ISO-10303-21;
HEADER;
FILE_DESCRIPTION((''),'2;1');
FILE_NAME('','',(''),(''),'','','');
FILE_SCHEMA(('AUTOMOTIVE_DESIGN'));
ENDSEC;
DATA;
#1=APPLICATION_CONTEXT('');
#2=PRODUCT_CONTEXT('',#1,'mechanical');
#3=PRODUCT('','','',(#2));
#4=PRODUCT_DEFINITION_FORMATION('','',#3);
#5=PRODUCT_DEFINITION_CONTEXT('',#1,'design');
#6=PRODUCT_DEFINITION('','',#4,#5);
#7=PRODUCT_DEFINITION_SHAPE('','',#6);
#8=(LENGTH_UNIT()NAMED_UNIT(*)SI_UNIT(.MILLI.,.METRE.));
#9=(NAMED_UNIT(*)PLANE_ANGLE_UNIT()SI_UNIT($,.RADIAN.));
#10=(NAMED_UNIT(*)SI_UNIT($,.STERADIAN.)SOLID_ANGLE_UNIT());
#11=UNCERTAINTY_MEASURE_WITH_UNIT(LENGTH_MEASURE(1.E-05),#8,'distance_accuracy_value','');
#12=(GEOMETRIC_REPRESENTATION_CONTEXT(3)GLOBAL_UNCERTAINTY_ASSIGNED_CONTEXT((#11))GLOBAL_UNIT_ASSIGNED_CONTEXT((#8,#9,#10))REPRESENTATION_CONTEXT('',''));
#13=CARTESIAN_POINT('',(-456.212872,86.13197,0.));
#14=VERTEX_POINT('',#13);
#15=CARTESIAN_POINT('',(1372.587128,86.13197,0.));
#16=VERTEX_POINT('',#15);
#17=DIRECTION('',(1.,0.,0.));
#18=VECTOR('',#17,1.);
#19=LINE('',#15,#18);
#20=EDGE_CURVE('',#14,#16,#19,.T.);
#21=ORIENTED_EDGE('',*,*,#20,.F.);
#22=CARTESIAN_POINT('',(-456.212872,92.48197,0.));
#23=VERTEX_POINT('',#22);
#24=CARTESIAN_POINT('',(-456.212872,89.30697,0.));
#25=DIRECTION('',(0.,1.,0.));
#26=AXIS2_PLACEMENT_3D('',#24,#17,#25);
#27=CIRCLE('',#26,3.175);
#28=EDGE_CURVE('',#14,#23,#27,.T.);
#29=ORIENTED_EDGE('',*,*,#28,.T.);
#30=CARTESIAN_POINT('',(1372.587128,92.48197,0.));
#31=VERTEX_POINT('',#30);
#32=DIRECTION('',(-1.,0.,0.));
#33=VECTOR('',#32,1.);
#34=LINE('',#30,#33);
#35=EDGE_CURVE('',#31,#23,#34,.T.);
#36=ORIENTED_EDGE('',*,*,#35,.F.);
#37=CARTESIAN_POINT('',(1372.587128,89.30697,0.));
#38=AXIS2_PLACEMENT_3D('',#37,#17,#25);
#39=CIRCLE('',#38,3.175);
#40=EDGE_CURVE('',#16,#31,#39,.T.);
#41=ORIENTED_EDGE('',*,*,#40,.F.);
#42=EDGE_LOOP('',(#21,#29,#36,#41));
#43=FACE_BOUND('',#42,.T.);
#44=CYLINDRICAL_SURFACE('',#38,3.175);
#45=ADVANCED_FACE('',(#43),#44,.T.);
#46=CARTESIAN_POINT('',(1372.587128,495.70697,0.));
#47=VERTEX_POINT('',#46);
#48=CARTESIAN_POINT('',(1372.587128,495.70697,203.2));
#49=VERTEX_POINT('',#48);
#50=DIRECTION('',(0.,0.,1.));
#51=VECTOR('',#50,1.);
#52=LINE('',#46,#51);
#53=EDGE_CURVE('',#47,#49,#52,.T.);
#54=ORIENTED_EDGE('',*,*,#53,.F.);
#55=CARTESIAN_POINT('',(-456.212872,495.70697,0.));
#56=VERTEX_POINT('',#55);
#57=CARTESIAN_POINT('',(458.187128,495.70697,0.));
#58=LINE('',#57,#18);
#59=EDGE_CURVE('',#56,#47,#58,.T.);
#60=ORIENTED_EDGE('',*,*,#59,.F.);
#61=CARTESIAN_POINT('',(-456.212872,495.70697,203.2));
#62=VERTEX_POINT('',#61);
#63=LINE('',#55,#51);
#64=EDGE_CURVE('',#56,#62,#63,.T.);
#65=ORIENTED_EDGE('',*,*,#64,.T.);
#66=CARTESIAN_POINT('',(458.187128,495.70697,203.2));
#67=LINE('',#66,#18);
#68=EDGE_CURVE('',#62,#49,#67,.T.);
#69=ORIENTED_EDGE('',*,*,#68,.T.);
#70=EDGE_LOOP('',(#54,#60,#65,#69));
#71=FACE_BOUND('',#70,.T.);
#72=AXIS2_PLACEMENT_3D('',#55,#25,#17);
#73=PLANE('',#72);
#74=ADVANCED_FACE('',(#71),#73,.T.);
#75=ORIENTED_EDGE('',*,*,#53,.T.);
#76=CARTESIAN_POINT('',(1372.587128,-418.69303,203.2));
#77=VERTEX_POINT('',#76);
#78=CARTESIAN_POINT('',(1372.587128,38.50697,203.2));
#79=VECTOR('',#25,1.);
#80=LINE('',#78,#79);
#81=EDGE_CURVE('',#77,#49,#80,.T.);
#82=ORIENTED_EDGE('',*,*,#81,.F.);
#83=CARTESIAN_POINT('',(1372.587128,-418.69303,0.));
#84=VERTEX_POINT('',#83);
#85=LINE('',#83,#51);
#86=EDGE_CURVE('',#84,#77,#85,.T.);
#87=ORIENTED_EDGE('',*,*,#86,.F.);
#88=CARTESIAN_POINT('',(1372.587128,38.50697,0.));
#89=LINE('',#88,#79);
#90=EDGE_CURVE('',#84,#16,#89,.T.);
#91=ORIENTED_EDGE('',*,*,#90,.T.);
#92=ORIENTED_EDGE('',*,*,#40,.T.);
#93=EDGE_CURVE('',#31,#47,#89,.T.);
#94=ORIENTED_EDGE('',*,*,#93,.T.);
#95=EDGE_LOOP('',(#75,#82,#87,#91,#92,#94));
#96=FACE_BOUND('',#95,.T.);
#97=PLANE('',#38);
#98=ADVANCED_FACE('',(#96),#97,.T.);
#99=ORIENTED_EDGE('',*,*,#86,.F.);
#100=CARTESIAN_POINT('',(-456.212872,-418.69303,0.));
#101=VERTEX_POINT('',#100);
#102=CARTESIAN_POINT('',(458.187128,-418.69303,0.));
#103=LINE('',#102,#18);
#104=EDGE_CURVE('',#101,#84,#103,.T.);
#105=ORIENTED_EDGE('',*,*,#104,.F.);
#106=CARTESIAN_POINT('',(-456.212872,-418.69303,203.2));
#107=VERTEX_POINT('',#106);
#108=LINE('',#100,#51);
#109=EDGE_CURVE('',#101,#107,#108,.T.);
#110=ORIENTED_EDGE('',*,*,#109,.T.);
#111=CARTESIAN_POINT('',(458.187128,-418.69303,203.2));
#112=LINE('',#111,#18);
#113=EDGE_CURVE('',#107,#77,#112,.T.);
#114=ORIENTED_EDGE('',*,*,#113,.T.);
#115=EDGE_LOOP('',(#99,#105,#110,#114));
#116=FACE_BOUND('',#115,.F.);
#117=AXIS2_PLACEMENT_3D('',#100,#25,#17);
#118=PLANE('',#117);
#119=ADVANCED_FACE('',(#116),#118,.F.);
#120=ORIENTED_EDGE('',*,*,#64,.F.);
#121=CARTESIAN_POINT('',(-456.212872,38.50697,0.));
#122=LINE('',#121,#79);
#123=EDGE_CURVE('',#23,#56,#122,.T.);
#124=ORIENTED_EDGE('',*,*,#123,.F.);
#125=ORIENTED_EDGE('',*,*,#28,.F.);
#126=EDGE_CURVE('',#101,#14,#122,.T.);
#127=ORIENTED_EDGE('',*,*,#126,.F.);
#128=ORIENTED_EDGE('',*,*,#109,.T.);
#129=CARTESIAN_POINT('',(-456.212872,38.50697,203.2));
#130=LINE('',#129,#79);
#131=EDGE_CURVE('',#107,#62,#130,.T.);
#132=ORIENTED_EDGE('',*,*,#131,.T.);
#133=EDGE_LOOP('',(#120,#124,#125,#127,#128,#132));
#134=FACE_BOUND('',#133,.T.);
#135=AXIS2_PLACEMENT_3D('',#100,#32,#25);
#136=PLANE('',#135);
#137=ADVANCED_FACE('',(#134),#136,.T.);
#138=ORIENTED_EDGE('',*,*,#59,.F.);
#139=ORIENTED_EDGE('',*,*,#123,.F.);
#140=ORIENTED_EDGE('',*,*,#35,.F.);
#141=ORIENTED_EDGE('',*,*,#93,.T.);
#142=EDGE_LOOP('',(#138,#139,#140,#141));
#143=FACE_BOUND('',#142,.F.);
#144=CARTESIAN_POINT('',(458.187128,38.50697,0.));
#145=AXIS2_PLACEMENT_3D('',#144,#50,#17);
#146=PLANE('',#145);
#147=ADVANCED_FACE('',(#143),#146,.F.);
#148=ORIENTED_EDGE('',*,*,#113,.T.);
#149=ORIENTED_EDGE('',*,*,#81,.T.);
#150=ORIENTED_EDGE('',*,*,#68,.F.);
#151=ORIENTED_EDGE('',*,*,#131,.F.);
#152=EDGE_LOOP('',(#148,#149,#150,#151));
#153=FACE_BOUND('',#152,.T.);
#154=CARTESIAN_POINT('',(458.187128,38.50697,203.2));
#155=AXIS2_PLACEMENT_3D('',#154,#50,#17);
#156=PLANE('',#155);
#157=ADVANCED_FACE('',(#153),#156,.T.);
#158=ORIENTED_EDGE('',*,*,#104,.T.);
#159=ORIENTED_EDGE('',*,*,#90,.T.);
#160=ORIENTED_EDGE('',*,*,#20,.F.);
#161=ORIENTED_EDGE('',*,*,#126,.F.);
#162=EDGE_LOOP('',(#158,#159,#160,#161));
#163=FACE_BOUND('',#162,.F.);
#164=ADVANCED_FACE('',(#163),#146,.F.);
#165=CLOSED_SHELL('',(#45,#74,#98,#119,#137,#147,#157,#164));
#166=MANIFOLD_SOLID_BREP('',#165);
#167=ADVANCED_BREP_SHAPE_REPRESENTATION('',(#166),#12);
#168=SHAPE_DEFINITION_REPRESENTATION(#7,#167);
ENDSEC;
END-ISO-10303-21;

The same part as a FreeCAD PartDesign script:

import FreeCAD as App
import Part
import Sketcher
Q = App.Units.Quantity

doc = App.newDocument("Part")
body = doc.addObject("PartDesign::Body", "Body")

# Sketch on XY plane
sketch1 = body.newObject("Sketcher::SketchObject", "Sketch")
sketch1.AttachmentSupport = (doc.getObject("XY_Plane"), [""])
sketch1.MapMode = "FlatFace"
sketch1.addGeometry([
    Part.LineSegment(App.Vector(-456, 496, 0), App.Vector(-456, -419, 0)),
    Part.LineSegment(App.Vector(-456, -419, 0), App.Vector(1373, -419, 0)),
    Part.LineSegment(App.Vector(1373, -419, 0), App.Vector(1373, 496, 0)),
    Part.LineSegment(App.Vector(1373, 496, 0), App.Vector(-456, 496, 0)),
], False)
sketch1.addConstraint([
    Sketcher.Constraint("Coincident", 0, 2, 1, 1),
    Sketcher.Constraint("Coincident", 1, 2, 2, 1),
    Sketcher.Constraint("Coincident", 2, 2, 3, 1),
    Sketcher.Constraint("Coincident", 3, 2, 0, 1),
    Sketcher.Constraint("Vertical", 0),
    Sketcher.Constraint("Horizontal", 1),
    Sketcher.Constraint("Vertical", 2),
    Sketcher.Constraint("Horizontal", 3),
    Sketcher.Constraint("DistanceX", 1, 1, 1, 2, Q("72 in")),
    Sketcher.Constraint("DistanceY", 0, 2, 0, 1, Q("36 in")),
    Sketcher.Constraint("DistanceX", 0, 2, -1, 1, Q("456.212872 mm")),
    Sketcher.Constraint("DistanceY", 0, 2, -1, 1, Q("418.69303 mm")),
])
pad1 = body.newObject("PartDesign::Pad", "Pad")
pad1.Profile = sketch1
pad1.Length = Q("8 in")

# Sketch on YZ plane
sketch2 = body.newObject("Sketcher::SketchObject", "Sketch001")
sketch2.AttachmentSupport = (doc.getObject("YZ_Plane"), [""])
sketch2.MapMode = "FlatFace"
sketch2.AttachmentOffset = App.Placement(App.Vector(0, 0, 1372.587128), App.Rotation())
sketch2.addGeometry(Part.Circle(App.Vector(89.3, 0, 0), App.Vector(0, 0, 1), 3.2), False)
sketch2.addConstraint([
    Sketcher.Constraint("PointOnObject", 0, 3, -1),
    Sketcher.Constraint("Diameter", 0, Q("0.25 in")),
    Sketcher.Constraint("DistanceX", -1, 1, 0, 3, Q("89.30697 mm")),
])
pad2 = body.newObject("PartDesign::Pad", "Pad001")
pad2.Profile = sketch2
pad2.Length = Q("72 in")
pad2.Reversed = True

doc.recompute()
